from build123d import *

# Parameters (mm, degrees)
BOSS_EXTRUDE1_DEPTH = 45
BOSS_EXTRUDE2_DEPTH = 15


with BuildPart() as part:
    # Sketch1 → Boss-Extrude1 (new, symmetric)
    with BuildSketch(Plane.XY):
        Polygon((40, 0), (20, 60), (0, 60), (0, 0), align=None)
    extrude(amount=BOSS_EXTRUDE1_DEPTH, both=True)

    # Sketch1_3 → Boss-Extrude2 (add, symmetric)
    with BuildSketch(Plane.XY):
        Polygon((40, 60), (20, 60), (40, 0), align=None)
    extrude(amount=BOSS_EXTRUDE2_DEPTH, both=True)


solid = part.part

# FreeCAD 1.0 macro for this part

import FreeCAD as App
import Part
import Sketcher
Q = App.Units.Quantity

doc = App.newDocument("Part")
body = doc.addObject("PartDesign::Body", "Body")

sketch1 = body.newObject("Sketcher::SketchObject", "Sketch")
sketch1.AttachmentSupport = (doc.getObject("XY_Plane"), [""])
sketch1.MapMode = "FlatFace"
sketch1.addGeometry(Part.LineSegment(App.Vector(40, 0, 0), App.Vector(20, 60, 0)), False)
sketch1.addGeometry(Part.LineSegment(App.Vector(20, 60, 0), App.Vector(0, 60, 0)), False)
sketch1.addGeometry(Part.LineSegment(App.Vector(0, 60, 0), App.Vector(0, 0, 0)), False)
sketch1.addGeometry(Part.LineSegment(App.Vector(0, 0, 0), App.Vector(40, 0, 0)), False)
sketch1.addConstraint(Sketcher.Constraint("Coincident", 0, 2, 1, 1))
sketch1.addConstraint(Sketcher.Constraint("Coincident", 1, 2, 2, 1))
sketch1.addConstraint(Sketcher.Constraint("Coincident", 2, 2, 3, 1))
sketch1.addConstraint(Sketcher.Constraint("Coincident", 3, 2, 0, 1))
sketch1.addConstraint(Sketcher.Constraint("Horizontal", 1))
sketch1.addConstraint(Sketcher.Constraint("Vertical", 2))
sketch1.addConstraint(Sketcher.Constraint("Horizontal", 3))
sketch1.addConstraint(Sketcher.Constraint("Coincident", 2, 2, -1, 1))
sketch1.addConstraint(Sketcher.Constraint("DistanceX", 1, 2, 1, 1, Q("20 mm")))
sketch1.addConstraint(Sketcher.Constraint("DistanceX", 3, 1, 3, 2, Q("40 mm")))
sketch1.addConstraint(Sketcher.Constraint("DistanceY", 2, 2, 2, 1, Q("60 mm")))
pad1 = body.newObject("PartDesign::Pad", "Pad")
pad1.Profile = sketch1
pad1.Length = 90
pad1.Midplane = True

sketch2 = body.newObject("Sketcher::SketchObject", "Sketch001")
sketch2.AttachmentSupport = (doc.getObject("XY_Plane"), [""])
sketch2.MapMode = "FlatFace"
sketch2.addGeometry(Part.LineSegment(App.Vector(40, 60, 0), App.Vector(20, 60, 0)), False)
sketch2.addGeometry(Part.LineSegment(App.Vector(20, 60, 0), App.Vector(40, 0, 0)), False)
sketch2.addGeometry(Part.LineSegment(App.Vector(40, 0, 0), App.Vector(40, 60, 0)), False)
sketch2.addConstraint(Sketcher.Constraint("Coincident", 0, 2, 1, 1))
sketch2.addConstraint(Sketcher.Constraint("Coincident", 1, 2, 2, 1))
sketch2.addConstraint(Sketcher.Constraint("Coincident", 2, 2, 0, 1))
sketch2.addConstraint(Sketcher.Constraint("Horizontal", 0))
sketch2.addConstraint(Sketcher.Constraint("Vertical", 2))
sketch2.addConstraint(Sketcher.Constraint("PointOnObject", 1, 2, -1))
sketch2.addConstraint(Sketcher.Constraint("DistanceX", 0, 2, 0, 1, Q("20 mm")))
sketch2.addConstraint(Sketcher.Constraint("DistanceY", 2, 1, 2, 2, Q("60 mm")))
sketch2.addConstraint(Sketcher.Constraint("DistanceX", -1, 1, 0, 2, Q("20 mm")))
pad2 = body.newObject("PartDesign::Pad", "Pad001")
pad2.Profile = sketch2
pad2.Length = 30
pad2.Midplane = True

doc.recompute()
